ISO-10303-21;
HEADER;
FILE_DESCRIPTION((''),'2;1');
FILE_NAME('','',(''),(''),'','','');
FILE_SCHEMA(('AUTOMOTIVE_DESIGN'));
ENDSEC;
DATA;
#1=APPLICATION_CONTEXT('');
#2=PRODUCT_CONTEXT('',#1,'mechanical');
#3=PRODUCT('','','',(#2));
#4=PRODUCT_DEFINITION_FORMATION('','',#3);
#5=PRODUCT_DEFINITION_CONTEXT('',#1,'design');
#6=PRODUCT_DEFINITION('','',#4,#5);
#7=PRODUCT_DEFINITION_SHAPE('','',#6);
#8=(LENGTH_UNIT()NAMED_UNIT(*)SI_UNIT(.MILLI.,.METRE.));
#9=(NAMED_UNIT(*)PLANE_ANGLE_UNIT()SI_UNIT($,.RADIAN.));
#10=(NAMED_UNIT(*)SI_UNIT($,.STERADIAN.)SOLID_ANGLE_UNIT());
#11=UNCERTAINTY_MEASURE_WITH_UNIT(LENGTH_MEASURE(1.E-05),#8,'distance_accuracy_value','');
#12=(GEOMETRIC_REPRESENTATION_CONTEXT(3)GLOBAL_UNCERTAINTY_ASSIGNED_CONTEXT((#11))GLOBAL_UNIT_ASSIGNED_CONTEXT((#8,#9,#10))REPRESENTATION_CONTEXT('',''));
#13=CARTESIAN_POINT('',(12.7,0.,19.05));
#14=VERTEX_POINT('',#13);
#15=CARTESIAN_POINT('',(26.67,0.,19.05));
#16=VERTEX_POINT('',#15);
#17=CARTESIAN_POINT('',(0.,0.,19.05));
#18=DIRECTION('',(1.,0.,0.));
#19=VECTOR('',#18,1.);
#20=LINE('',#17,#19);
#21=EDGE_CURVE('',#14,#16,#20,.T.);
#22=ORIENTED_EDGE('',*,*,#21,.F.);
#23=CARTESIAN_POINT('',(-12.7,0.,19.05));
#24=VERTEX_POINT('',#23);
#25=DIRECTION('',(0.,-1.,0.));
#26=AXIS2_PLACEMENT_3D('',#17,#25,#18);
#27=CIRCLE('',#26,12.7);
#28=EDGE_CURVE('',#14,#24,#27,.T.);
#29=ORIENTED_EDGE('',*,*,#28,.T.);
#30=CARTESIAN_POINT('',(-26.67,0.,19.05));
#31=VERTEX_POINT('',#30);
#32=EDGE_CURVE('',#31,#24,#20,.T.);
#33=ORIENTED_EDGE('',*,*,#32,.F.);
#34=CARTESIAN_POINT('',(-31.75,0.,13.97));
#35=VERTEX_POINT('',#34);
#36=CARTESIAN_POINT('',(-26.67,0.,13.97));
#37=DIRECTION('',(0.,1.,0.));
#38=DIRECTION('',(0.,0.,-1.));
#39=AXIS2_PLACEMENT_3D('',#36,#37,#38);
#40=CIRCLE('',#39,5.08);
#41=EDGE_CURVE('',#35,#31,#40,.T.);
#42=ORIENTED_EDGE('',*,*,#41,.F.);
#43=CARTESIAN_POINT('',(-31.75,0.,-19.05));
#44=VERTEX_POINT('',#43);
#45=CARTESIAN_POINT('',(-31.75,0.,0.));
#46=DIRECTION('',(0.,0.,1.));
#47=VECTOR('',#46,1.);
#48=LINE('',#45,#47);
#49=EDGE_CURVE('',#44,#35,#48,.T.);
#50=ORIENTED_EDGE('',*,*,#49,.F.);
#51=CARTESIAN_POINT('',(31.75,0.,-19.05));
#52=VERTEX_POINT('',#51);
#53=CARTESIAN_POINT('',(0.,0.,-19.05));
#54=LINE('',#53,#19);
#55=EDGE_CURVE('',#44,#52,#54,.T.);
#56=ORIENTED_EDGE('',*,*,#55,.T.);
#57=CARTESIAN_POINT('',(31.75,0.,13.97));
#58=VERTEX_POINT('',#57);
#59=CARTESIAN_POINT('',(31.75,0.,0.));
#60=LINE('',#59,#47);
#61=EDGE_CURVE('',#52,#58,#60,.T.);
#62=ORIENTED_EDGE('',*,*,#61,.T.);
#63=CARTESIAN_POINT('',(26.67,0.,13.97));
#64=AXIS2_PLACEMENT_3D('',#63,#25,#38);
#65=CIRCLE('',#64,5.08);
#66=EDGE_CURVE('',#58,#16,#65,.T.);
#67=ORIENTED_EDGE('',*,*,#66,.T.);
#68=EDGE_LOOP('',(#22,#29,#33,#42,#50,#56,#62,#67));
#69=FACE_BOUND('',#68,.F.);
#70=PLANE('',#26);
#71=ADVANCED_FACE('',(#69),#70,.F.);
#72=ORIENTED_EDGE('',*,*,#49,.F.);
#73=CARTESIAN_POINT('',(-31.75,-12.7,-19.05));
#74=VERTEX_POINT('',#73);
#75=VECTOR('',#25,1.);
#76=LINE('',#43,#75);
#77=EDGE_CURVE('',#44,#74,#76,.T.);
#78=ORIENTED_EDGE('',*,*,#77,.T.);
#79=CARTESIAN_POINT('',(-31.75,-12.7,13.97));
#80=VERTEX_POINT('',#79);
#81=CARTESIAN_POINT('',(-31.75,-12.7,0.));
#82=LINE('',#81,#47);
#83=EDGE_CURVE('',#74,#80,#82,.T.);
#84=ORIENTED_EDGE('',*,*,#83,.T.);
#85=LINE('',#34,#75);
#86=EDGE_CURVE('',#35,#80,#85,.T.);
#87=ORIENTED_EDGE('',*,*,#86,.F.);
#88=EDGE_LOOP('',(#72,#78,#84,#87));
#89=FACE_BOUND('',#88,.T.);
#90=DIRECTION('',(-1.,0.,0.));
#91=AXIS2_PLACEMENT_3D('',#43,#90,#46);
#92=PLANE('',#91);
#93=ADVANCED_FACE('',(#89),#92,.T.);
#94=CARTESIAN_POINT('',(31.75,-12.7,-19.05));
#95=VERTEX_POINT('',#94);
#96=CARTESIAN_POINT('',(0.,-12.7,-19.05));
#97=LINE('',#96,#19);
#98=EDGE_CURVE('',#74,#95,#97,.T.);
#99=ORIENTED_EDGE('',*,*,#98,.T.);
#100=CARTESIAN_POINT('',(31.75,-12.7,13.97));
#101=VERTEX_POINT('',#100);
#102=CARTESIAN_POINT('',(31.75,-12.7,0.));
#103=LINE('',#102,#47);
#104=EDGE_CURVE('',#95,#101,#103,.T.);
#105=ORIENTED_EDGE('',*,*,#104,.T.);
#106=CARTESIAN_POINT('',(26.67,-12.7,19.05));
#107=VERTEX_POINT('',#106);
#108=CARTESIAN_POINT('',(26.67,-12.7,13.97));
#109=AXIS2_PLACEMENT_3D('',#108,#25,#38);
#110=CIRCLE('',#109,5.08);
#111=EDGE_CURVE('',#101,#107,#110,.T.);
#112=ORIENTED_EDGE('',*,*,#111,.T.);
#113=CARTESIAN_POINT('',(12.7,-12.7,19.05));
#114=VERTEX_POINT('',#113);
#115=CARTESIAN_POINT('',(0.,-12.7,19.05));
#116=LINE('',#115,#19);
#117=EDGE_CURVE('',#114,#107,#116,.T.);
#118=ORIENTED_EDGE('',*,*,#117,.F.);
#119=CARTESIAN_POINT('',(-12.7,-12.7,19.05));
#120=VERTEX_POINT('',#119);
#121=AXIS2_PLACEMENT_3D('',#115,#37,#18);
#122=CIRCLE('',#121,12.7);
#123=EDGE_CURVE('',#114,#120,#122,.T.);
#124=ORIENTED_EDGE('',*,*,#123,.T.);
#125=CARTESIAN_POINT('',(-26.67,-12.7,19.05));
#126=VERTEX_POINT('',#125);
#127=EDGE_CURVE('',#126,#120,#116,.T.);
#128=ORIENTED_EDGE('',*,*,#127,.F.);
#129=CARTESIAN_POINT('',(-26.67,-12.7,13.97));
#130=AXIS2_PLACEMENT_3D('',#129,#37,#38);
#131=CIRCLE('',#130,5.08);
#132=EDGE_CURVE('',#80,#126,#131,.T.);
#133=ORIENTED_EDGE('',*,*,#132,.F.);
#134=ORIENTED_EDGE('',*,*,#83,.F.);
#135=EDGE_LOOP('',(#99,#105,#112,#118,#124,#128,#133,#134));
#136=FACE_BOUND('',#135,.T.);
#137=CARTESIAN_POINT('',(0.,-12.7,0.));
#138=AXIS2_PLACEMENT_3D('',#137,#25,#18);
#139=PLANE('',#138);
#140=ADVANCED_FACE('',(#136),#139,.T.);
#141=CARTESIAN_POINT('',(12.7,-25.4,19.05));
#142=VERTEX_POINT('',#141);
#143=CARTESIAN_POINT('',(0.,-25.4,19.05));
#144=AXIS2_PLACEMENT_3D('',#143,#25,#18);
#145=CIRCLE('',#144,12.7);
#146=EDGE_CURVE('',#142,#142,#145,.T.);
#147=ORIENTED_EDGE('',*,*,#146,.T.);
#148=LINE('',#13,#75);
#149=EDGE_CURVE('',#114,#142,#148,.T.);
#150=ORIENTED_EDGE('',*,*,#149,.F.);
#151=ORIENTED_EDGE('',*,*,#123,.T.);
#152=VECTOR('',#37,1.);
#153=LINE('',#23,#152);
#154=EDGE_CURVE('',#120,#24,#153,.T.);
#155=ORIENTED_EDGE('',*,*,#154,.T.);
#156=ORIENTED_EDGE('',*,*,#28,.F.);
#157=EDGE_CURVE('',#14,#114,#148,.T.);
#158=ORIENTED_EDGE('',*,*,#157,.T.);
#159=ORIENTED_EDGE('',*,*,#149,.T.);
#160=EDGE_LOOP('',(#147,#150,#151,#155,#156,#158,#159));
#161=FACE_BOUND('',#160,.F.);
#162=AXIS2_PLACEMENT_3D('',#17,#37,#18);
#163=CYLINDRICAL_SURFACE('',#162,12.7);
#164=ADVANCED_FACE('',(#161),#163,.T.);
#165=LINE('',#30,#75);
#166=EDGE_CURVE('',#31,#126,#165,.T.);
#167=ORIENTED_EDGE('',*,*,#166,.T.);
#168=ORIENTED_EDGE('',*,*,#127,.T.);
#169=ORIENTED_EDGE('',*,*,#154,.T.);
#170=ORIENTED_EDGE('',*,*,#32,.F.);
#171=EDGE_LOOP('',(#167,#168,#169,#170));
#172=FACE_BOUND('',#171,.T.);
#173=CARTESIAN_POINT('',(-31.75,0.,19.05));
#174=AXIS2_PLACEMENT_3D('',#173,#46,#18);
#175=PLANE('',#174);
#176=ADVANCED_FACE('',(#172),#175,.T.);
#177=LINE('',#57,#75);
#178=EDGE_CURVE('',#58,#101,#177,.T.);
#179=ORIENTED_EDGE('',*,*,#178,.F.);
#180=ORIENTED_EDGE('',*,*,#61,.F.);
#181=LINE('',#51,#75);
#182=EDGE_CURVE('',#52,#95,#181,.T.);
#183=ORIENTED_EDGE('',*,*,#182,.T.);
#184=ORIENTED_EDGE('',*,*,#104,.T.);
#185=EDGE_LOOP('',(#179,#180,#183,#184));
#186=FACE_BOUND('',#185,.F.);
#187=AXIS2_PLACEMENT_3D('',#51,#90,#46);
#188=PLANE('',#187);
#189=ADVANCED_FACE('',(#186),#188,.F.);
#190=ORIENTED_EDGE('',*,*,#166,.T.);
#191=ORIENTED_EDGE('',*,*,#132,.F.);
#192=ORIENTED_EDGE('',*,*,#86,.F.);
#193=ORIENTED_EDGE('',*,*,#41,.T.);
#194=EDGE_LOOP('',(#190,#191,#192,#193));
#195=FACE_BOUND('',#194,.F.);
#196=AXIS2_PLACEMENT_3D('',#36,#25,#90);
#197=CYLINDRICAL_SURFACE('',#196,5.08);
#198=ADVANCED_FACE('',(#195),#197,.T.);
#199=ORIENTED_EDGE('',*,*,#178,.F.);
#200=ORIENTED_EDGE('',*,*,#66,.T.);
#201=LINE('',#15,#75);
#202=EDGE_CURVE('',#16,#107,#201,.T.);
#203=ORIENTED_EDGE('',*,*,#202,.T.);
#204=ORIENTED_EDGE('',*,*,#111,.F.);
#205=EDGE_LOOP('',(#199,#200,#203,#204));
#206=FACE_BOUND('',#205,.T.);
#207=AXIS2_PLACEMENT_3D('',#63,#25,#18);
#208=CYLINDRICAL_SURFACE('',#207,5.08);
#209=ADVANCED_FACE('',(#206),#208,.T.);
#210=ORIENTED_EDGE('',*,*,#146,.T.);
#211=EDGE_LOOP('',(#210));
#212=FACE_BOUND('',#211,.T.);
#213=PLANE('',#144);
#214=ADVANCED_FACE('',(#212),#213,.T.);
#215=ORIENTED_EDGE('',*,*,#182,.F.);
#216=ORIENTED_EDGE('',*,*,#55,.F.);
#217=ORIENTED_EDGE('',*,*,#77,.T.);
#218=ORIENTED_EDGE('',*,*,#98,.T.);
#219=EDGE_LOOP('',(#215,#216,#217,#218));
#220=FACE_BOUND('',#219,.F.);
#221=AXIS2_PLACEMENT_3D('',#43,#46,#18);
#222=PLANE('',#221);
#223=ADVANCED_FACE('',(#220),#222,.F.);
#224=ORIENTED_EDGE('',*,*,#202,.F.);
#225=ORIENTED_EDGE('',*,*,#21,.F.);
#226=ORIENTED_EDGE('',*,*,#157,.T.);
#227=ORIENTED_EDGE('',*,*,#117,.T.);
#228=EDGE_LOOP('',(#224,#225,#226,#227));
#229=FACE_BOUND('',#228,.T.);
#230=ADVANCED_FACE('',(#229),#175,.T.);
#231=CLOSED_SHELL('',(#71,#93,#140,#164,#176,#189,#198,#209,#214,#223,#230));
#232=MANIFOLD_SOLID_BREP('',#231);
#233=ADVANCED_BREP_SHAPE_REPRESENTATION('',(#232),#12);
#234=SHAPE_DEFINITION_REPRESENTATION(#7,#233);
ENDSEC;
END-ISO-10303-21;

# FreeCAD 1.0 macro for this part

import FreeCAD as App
import Part
import Sketcher
Q = App.Units.Quantity


def edges_at(feature, points):
    """Names of the edges that pass closest to the given points."""
    edges = feature.Shape.Edges
    near = lambda p: min(range(len(edges)), key=lambda i: edges[i].distToShape(Part.Vertex(*p))[0])
    return sorted({f"Edge{near(p) + 1}" for p in points})


def add_polygon(sketch, points):
    """Adds a closed chain of lines whose ends are joined by coincident constraints."""
    first, n = sketch.GeometryCount, len(points)
    for a, b in zip(points, points[1:] + points[:1]):
        sketch.addGeometry(Part.LineSegment(App.Vector(*a, 0), App.Vector(*b, 0)), False)
    for i in range(n):
        sketch.addConstraint(Sketcher.Constraint("Coincident", first + i, 2, first + (i + 1) % n, 1))

doc = App.newDocument("Part")
params = doc.addObject("Spreadsheet::Sheet", "Params")
for row, (alias, value) in enumerate([
    ("sketch1_width", "2.5 in"),
    ("sketch1_height", "1.5 in"),
    ("pad1_length", "0.5 in"),
    ("fillet_radius", "0.2 in"),
    ("sketch2_diameter", "1 in"),
    ("pad2_length", "1 in"),
], start=1):
    params.set(f"A{row}", alias)
    params.set(f"B{row}", "=" + value)
    params.setAlias(f"B{row}", alias)

body = doc.addObject("PartDesign::Body", "Body")

# Sketch on XZ plane
sketch1 = doc.addObject("Sketcher::SketchObject", "Sketch")
body.addObject(sketch1)
sketch1.AttachmentSupport = (doc.XZ_Plane, [""])
sketch1.MapMode = "FlatFace"
add_polygon(sketch1, [(-32, 19), (-32, -19), (32, -19), (32, 19)])  # lines 0-3
sketch1.addConstraint([
    Sketcher.Constraint("Vertical", 0),
    Sketcher.Constraint("Horizontal", 1),
    Sketcher.Constraint("Vertical", 2),
    Sketcher.Constraint("Horizontal", 3),
    Sketcher.Constraint("Symmetric", 0, 2, 2, 2, -1, 1),
    Sketcher.Constraint("DistanceX", 1, 1, 1, 2, Q("2.5 in")),
    Sketcher.Constraint("DistanceY", 0, 2, 0, 1, Q("1.5 in")),
])
sketch1.setExpression("Constraints[9]", "Params.sketch1_width")
sketch1.setExpression("Constraints[10]", "Params.sketch1_height")
pad1 = doc.addObject("PartDesign::Pad", "Pad")
body.addObject(pad1)
pad1.Profile = sketch1
pad1.setExpression("Length", "Params.pad1_length")
doc.recompute()

fillet = doc.addObject("PartDesign::Fillet", "Fillet")
body.addObject(fillet)
fillet.Base = (pad1, edges_at(pad1, [(31.75, -6.35, 19.05), (-31.75, -6.35, 19.05)]))
fillet.setExpression("Radius", "Params.fillet_radius")

# Sketch on XZ plane
sketch2 = doc.addObject("Sketcher::SketchObject", "Sketch001")
body.addObject(sketch2)
sketch2.AttachmentSupport = (doc.XZ_Plane, [""])
sketch2.MapMode = "FlatFace"
sketch2.addGeometry(Part.Circle(App.Vector(0, 19, 0), App.Vector(0, 0, 1), 13), False)
sketch2.addConstraint([
    Sketcher.Constraint("PointOnObject", 0, 3, -2),
    Sketcher.Constraint("Diameter", 0, Q("1 in")),
    Sketcher.Constraint("DistanceY", -1, 1, 0, 3, Q("0.75 in")),
])
sketch2.setExpression("Constraints[1]", "Params.sketch2_diameter")
pad2 = doc.addObject("PartDesign::Pad", "Pad001")
body.addObject(pad2)
pad2.Profile = sketch2
pad2.setExpression("Length", "Params.pad2_length")

doc.recompute()
